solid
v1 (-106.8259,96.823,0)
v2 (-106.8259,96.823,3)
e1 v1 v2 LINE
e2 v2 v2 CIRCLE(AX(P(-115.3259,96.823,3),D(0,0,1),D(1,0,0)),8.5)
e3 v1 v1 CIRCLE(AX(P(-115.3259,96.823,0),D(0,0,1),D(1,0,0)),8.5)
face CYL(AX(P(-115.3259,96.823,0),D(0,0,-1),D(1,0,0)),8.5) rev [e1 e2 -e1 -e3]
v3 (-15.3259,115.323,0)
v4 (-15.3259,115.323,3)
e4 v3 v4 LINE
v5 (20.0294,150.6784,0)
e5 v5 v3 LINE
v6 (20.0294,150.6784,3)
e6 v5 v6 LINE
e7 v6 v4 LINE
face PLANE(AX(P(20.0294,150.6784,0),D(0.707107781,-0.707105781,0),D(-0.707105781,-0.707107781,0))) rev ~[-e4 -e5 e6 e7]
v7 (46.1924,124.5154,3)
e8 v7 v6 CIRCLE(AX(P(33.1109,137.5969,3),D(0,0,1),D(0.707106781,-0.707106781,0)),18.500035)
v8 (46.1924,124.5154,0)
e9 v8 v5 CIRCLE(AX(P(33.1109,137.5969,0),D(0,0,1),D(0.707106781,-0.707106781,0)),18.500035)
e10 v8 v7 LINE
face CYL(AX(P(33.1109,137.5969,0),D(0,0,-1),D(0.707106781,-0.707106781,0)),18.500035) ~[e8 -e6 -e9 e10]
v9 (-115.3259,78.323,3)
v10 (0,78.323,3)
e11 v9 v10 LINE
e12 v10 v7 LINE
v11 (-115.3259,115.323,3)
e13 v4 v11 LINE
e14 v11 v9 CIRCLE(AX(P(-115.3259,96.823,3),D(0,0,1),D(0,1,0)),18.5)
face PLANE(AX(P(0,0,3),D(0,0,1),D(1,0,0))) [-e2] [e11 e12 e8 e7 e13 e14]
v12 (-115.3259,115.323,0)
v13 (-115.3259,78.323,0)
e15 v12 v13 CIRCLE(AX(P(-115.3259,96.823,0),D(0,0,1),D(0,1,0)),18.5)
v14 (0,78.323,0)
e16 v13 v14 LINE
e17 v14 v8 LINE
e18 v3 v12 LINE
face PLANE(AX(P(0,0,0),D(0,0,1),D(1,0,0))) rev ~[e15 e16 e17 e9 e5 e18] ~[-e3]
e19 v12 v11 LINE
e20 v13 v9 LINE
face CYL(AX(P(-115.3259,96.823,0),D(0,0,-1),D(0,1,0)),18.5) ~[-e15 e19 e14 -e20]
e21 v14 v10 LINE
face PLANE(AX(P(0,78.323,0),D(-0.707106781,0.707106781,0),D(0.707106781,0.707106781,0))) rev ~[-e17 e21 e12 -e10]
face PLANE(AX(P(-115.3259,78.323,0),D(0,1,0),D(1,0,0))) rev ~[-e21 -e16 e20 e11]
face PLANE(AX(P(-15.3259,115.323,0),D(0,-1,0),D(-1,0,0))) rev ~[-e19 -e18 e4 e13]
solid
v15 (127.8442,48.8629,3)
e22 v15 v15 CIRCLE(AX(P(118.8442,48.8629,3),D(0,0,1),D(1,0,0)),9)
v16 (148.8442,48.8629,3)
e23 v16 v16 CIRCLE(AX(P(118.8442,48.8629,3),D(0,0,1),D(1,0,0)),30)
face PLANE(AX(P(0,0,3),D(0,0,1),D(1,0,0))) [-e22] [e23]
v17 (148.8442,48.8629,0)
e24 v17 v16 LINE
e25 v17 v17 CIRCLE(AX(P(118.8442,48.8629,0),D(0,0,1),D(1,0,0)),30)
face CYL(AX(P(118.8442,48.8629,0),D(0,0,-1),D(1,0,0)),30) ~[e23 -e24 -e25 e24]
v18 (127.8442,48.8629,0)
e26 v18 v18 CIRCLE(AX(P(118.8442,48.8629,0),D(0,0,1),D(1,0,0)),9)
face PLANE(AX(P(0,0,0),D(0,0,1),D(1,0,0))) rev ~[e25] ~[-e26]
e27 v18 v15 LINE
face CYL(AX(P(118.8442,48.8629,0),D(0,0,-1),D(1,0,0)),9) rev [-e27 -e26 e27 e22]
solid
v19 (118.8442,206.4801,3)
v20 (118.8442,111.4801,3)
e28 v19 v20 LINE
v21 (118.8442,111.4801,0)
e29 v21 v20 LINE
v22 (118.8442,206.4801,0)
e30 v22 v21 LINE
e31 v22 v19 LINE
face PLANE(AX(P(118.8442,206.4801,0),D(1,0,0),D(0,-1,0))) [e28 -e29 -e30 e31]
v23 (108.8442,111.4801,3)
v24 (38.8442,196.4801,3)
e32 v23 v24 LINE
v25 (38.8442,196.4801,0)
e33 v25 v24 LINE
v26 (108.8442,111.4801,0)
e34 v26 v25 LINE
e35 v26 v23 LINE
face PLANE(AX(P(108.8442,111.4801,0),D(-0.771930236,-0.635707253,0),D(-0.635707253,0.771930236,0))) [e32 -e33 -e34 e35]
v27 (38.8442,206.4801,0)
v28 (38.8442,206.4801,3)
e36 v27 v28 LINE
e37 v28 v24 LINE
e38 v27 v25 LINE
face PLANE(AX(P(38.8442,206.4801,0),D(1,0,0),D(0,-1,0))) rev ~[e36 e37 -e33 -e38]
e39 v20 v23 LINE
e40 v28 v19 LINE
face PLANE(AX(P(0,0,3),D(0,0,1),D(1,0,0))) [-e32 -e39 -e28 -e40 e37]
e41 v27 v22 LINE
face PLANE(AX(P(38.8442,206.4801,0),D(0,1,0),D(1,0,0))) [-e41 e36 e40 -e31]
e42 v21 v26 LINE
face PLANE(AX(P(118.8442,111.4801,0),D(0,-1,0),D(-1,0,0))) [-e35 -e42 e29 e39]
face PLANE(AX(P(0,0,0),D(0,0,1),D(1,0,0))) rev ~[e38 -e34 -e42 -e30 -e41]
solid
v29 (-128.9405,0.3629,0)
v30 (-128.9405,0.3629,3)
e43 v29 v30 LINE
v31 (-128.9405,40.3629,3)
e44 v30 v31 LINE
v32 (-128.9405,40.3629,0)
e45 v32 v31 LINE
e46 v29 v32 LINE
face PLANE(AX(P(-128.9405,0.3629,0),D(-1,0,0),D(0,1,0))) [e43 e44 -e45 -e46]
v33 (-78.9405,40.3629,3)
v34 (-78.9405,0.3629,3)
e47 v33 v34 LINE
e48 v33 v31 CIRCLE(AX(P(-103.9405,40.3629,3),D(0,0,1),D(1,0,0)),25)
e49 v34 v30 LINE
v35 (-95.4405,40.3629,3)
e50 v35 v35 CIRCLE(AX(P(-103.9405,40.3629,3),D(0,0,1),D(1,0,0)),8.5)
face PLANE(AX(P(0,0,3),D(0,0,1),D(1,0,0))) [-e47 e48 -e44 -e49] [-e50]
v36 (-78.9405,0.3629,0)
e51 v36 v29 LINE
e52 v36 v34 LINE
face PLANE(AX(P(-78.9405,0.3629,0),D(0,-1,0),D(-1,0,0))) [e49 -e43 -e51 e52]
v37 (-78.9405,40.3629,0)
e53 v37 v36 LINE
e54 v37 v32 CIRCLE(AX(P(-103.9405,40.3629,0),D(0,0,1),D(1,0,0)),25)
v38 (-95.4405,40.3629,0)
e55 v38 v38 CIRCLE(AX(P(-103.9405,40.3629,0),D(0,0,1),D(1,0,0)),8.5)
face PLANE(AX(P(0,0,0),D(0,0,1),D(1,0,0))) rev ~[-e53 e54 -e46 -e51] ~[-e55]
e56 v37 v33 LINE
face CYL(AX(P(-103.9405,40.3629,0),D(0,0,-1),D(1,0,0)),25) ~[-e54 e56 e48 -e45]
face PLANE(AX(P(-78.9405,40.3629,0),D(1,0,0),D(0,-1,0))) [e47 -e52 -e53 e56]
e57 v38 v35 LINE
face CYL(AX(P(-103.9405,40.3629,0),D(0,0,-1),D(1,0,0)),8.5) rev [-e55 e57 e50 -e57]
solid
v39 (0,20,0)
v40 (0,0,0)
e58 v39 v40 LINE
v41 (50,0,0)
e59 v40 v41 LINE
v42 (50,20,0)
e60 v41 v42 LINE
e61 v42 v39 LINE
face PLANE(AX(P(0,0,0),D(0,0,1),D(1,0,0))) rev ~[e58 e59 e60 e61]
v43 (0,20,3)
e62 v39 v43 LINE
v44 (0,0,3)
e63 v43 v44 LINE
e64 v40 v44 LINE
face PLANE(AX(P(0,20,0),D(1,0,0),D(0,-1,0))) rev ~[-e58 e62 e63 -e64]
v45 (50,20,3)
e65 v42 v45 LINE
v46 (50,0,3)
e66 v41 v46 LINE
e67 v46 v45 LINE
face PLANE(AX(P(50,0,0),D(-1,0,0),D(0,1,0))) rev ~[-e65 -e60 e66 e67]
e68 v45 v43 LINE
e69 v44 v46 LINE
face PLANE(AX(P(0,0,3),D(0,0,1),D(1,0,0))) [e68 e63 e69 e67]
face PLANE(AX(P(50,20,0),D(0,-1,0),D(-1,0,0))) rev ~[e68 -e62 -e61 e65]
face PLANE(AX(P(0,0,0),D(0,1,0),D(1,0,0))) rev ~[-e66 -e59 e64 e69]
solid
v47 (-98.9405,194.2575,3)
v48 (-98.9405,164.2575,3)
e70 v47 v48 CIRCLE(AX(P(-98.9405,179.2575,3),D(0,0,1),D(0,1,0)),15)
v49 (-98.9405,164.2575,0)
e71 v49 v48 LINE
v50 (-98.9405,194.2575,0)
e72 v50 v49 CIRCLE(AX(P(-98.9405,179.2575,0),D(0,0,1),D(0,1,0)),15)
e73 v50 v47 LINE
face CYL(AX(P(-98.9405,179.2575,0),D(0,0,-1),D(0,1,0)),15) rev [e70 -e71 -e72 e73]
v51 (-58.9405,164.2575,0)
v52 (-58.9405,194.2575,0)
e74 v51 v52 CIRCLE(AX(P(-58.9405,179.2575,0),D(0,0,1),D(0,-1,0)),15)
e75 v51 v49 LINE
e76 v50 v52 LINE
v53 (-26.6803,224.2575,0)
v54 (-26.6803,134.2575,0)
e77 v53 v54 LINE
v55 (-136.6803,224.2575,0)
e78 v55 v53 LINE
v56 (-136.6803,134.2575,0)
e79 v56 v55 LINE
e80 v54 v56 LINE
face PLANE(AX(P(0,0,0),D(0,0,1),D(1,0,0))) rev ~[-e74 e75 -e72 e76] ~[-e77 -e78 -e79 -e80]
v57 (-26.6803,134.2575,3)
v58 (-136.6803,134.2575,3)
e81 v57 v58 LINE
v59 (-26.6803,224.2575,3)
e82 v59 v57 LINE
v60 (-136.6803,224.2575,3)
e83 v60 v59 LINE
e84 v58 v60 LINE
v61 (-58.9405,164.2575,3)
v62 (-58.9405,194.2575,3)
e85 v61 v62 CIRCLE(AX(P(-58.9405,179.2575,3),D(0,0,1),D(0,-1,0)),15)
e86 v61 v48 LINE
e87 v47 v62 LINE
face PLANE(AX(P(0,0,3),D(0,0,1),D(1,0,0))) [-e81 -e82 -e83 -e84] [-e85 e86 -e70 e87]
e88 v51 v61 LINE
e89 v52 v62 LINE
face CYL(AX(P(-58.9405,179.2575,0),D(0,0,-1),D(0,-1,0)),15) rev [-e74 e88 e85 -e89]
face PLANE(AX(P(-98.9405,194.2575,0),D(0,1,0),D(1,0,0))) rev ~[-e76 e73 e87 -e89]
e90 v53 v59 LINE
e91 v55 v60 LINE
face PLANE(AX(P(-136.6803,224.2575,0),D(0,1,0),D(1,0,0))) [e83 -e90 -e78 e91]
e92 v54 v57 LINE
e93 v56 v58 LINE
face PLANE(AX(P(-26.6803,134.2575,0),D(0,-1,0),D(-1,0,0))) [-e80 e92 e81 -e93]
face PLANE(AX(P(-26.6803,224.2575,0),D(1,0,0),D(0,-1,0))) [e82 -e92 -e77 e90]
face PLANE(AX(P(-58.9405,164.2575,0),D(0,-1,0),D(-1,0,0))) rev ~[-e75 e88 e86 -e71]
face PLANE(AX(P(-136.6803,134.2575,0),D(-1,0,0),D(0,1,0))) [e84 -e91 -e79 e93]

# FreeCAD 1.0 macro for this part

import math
import FreeCAD as App
import Part
import Sketcher

V = App.Vector
Q = App.Units.Quantity


def add_polygon(sketch, points):
    """Adds a closed chain of lines whose ends are joined by coincident constraints."""
    first, n = sketch.GeometryCount, len(points)
    for a, b in zip(points, points[1:] + points[:1]):
        sketch.addGeometry(Part.LineSegment(App.Vector(*a, 0), App.Vector(*b, 0)), False)
    for i in range(n):
        sketch.addConstraint(Sketcher.Constraint("Coincident", first + i, 2, first + (i + 1) % n, 1))

doc = App.newDocument("Part")
body = doc.addObject("PartDesign::Body", "Body")
body.AllowCompound = True

sketch1 = body.newObject("Sketcher::SketchObject", "Sketch")
sketch1.AttachmentSupport = (doc.getObject("XY_Plane"), [""])
sketch1.MapMode = "FlatFace"
add_polygon(sketch1, [(0, 20), (0, 0), (50, 0), (50, 20)])
sketch1.addGeometry(Part.LineSegment(V(20, 151, 0), V(-15, 115, 0)), False)
sketch1.addGeometry(Part.LineSegment(V(-15, 115, 0), V(-115, 115, 0)), False)
sketch1.addGeometry(Part.ArcOfCircle(Part.Circle(V(-115, 97, 0), V(0, 0, 1), 18), math.radians(90), math.radians(270)), False)
sketch1.addGeometry(Part.LineSegment(V(-115, 78, 0), V(0, 78, 0)), False)
sketch1.addGeometry(Part.LineSegment(V(0, 78, 0), V(46, 125, 0)), False)
sketch1.addGeometry(Part.ArcOfCircle(Part.Circle(V(33, 138, 0), V(0, 0, 1), 19), math.radians(-45), math.radians(135)), False)
sketch1.addGeometry(Part.Circle(V(-115, 97, 0), V(0, 0, 1), 8), False)
sketch1.addGeometry(Part.LineSegment(V(-129, 40, 0), V(-129, 0, 0)), False)
sketch1.addGeometry(Part.LineSegment(V(-129, 0, 0), V(-79, 0, 0)), False)
sketch1.addGeometry(Part.LineSegment(V(-79, 0, 0), V(-79, 40, 0)), False)
sketch1.addGeometry(Part.ArcOfCircle(Part.Circle(V(-104, 40, 0), V(0, 0, 1), 25), math.radians(0), math.radians(180)), False)
sketch1.addGeometry(Part.Circle(V(-104, 40, 0), V(0, 0, 1), 8), False)
add_polygon(sketch1, [(119, 206), (39, 206), (39, 196), (109, 111), (119, 111)])
add_polygon(sketch1, [(-27, 224), (-137, 224), (-137, 134), (-27, 134)])
sketch1.addGeometry(Part.ArcOfCircle(Part.Circle(V(-99, 179, 0), V(0, 0, 1), 15), math.radians(90), math.radians(270)), False)
sketch1.addGeometry(Part.LineSegment(V(-99, 194, 0), V(-59, 194, 0)), False)
sketch1.addGeometry(Part.ArcOfCircle(Part.Circle(V(-59, 179, 0), V(0, 0, 1), 15), math.radians(-90), math.radians(90)), False)
sketch1.addGeometry(Part.LineSegment(V(-59, 164, 0), V(-99, 164, 0)), False)
sketch1.addGeometry(Part.Circle(V(119, 49, 0), V(0, 0, 1), 30), False)
sketch1.addGeometry(Part.Circle(V(119, 49, 0), V(0, 0, 1), 9), False)
sketch1.addConstraint(Sketcher.Constraint("Coincident", 4, 2, 5, 1))
sketch1.addConstraint(Sketcher.Constraint("Tangent", 5, 2, 6, 1))
sketch1.addConstraint(Sketcher.Constraint("Tangent", 6, 2, 7, 1))
sketch1.addConstraint(Sketcher.Constraint("Coincident", 7, 2, 8, 1))
sketch1.addConstraint(Sketcher.Constraint("Tangent", 8, 2, 9, 1))
sketch1.addConstraint(Sketcher.Constraint("Tangent", 9, 2, 4, 1))
sketch1.addConstraint(Sketcher.Constraint("Coincident", 11, 2, 12, 1))
sketch1.addConstraint(Sketcher.Constraint("Coincident", 12, 2, 13, 1))
sketch1.addConstraint(Sketcher.Constraint("Tangent", 13, 2, 14, 1))
sketch1.addConstraint(Sketcher.Constraint("Tangent", 14, 2, 11, 1))
sketch1.addConstraint(Sketcher.Constraint("Tangent", 25, 1, 26, 1))
sketch1.addConstraint(Sketcher.Constraint("Tangent", 26, 2, 27, 2))
sketch1.addConstraint(Sketcher.Constraint("Tangent", 27, 1, 28, 1))
sketch1.addConstraint(Sketcher.Constraint("Tangent", 28, 2, 25, 2))
sketch1.addConstraint(Sketcher.Constraint("Vertical", 0))
sketch1.addConstraint(Sketcher.Constraint("Horizontal", 1))
sketch1.addConstraint(Sketcher.Constraint("Vertical", 2))
sketch1.addConstraint(Sketcher.Constraint("Horizontal", 3))
sketch1.addConstraint(Sketcher.Constraint("Horizontal", 5))
sketch1.addConstraint(Sketcher.Constraint("Horizontal", 7))
sketch1.addConstraint(Sketcher.Constraint("Vertical", 11))
sketch1.addConstraint(Sketcher.Constraint("Horizontal", 12))
sketch1.addConstraint(Sketcher.Constraint("Vertical", 13))
sketch1.addConstraint(Sketcher.Constraint("Horizontal", 16))
sketch1.addConstraint(Sketcher.Constraint("Vertical", 17))
sketch1.addConstraint(Sketcher.Constraint("Horizontal", 19))
sketch1.addConstraint(Sketcher.Constraint("Vertical", 20))
sketch1.addConstraint(Sketcher.Constraint("Horizontal", 21))
sketch1.addConstraint(Sketcher.Constraint("Vertical", 22))
sketch1.addConstraint(Sketcher.Constraint("Horizontal", 23))
sketch1.addConstraint(Sketcher.Constraint("Vertical", 24))
sketch1.addConstraint(Sketcher.Constraint("Horizontal", 26))
sketch1.addConstraint(Sketcher.Constraint("Horizontal", 28))
sketch1.addConstraint(Sketcher.Constraint("Coincident", 0, 2, -1, 1))
sketch1.addConstraint(Sketcher.Constraint("Coincident", 10, 3, 6, 3))
sketch1.addConstraint(Sketcher.Constraint("Coincident", 15, 3, 14, 3))
sketch1.addConstraint(Sketcher.Constraint("Coincident", 30, 3, 29, 3))
sketch1.addConstraint(Sketcher.Constraint("Equal", 6, 9))
sketch1.addConstraint(Sketcher.Constraint("Equal", 10, 15))
sketch1.addConstraint(Sketcher.Constraint("PointOnObject", 7, 2, -2))
sketch1.addConstraint(Sketcher.Constraint("Parallel", 4, 8))
sketch1.addConstraint(Sketcher.Constraint("Vertical", 30, 3, 19, 2))
sketch1.addConstraint(Sketcher.Constraint("Equal", 3, 12))
sketch1.addConstraint(Sketcher.Constraint("Equal", 28, 11))
sketch1.addConstraint(Sketcher.Constraint("Equal", 19, 17))
sketch1.addConstraint(Sketcher.Constraint("Diameter", 10, Q("17 mm")))
sketch1.addConstraint(Sketcher.Constraint("Diameter", 29, Q("60 mm")))
sketch1.addConstraint(Sketcher.Constraint("Diameter", 30, Q("18 mm")))
sketch1.addConstraint(Sketcher.Constraint("Radius", 14, Q("25 mm")))
sketch1.addConstraint(Sketcher.Constraint("Radius", 25, Q("15 mm")))
sketch1.addConstraint(Sketcher.Constraint("DistanceX", 5, 2, 5, 1, Q("100 mm")))
sketch1.addConstraint(Sketcher.Constraint("DistanceX", 16, 2, 16, 1, Q("80 mm")))
sketch1.addConstraint(Sketcher.Constraint("DistanceX", 19, 1, 19, 2, Q("10 mm")))
sketch1.addConstraint(Sketcher.Constraint("DistanceX", 21, 2, 21, 1, Q("110 mm")))
sketch1.addConstraint(Sketcher.Constraint("DistanceX", 26, 1, 26, 2, Q("40 mm")))
sketch1.addConstraint(Sketcher.Constraint("DistanceY", 0, 2, 0, 1, Q("20 mm")))
sketch1.addConstraint(Sketcher.Constraint("DistanceY", 20, 1, 20, 2, Q("95 mm")))
sketch1.addConstraint(Sketcher.Constraint("DistanceY", 22, 2, 22, 1, Q("90 mm")))
sketch1.addConstraint(Sketcher.Constraint("Angle", 4, Q("-135 deg")))
sketch1.addConstraint(Sketcher.Constraint("Distance", 4, Q("50 mm")))
sketch1.addConstraint(Sketcher.Constraint("DistanceY", 25, 1, 21, 2, Q("30 mm")))
sketch1.addConstraint(Sketcher.Constraint("Radius", 6, Q("18.5 mm")))
sketch1.addConstraint(Sketcher.Constraint("DistanceX", 14, 3, 25, 3, Q("5 mm")))
sketch1.addConstraint(Sketcher.Constraint("DistanceY", 14, 3, 29, 3, Q("8.5 mm")))
sketch1.addConstraint(Sketcher.Constraint("DistanceY", -1, 1, 16, 2, Q("206.48 mm")))
sketch1.addConstraint(Sketcher.Constraint("DistanceY", 14, 3, 6, 3, Q("56.46 mm")))
sketch1.addConstraint(Sketcher.Constraint("DistanceX", 6, 3, 29, 3, Q("234.17 mm")))
sketch1.addConstraint(Sketcher.Constraint("DistanceX", 27, 3, 9, 2, Q("78.97 mm")))
sketch1.addConstraint(Sketcher.Constraint("DistanceY", -1, 1, 6, 3, Q("96.823 mm")))
sketch1.addConstraint(Sketcher.Constraint("DistanceY", 9, 2, 27, 3, Q("28.579 mm")))
sketch1.addConstraint(Sketcher.Constraint("DistanceX", 21, 2, -1, 1, Q("136.6803 mm")))
pad1 = body.newObject("PartDesign::Pad", "Pad")
pad1.Profile = sketch1
pad1.Length = 3

doc.recompute()
